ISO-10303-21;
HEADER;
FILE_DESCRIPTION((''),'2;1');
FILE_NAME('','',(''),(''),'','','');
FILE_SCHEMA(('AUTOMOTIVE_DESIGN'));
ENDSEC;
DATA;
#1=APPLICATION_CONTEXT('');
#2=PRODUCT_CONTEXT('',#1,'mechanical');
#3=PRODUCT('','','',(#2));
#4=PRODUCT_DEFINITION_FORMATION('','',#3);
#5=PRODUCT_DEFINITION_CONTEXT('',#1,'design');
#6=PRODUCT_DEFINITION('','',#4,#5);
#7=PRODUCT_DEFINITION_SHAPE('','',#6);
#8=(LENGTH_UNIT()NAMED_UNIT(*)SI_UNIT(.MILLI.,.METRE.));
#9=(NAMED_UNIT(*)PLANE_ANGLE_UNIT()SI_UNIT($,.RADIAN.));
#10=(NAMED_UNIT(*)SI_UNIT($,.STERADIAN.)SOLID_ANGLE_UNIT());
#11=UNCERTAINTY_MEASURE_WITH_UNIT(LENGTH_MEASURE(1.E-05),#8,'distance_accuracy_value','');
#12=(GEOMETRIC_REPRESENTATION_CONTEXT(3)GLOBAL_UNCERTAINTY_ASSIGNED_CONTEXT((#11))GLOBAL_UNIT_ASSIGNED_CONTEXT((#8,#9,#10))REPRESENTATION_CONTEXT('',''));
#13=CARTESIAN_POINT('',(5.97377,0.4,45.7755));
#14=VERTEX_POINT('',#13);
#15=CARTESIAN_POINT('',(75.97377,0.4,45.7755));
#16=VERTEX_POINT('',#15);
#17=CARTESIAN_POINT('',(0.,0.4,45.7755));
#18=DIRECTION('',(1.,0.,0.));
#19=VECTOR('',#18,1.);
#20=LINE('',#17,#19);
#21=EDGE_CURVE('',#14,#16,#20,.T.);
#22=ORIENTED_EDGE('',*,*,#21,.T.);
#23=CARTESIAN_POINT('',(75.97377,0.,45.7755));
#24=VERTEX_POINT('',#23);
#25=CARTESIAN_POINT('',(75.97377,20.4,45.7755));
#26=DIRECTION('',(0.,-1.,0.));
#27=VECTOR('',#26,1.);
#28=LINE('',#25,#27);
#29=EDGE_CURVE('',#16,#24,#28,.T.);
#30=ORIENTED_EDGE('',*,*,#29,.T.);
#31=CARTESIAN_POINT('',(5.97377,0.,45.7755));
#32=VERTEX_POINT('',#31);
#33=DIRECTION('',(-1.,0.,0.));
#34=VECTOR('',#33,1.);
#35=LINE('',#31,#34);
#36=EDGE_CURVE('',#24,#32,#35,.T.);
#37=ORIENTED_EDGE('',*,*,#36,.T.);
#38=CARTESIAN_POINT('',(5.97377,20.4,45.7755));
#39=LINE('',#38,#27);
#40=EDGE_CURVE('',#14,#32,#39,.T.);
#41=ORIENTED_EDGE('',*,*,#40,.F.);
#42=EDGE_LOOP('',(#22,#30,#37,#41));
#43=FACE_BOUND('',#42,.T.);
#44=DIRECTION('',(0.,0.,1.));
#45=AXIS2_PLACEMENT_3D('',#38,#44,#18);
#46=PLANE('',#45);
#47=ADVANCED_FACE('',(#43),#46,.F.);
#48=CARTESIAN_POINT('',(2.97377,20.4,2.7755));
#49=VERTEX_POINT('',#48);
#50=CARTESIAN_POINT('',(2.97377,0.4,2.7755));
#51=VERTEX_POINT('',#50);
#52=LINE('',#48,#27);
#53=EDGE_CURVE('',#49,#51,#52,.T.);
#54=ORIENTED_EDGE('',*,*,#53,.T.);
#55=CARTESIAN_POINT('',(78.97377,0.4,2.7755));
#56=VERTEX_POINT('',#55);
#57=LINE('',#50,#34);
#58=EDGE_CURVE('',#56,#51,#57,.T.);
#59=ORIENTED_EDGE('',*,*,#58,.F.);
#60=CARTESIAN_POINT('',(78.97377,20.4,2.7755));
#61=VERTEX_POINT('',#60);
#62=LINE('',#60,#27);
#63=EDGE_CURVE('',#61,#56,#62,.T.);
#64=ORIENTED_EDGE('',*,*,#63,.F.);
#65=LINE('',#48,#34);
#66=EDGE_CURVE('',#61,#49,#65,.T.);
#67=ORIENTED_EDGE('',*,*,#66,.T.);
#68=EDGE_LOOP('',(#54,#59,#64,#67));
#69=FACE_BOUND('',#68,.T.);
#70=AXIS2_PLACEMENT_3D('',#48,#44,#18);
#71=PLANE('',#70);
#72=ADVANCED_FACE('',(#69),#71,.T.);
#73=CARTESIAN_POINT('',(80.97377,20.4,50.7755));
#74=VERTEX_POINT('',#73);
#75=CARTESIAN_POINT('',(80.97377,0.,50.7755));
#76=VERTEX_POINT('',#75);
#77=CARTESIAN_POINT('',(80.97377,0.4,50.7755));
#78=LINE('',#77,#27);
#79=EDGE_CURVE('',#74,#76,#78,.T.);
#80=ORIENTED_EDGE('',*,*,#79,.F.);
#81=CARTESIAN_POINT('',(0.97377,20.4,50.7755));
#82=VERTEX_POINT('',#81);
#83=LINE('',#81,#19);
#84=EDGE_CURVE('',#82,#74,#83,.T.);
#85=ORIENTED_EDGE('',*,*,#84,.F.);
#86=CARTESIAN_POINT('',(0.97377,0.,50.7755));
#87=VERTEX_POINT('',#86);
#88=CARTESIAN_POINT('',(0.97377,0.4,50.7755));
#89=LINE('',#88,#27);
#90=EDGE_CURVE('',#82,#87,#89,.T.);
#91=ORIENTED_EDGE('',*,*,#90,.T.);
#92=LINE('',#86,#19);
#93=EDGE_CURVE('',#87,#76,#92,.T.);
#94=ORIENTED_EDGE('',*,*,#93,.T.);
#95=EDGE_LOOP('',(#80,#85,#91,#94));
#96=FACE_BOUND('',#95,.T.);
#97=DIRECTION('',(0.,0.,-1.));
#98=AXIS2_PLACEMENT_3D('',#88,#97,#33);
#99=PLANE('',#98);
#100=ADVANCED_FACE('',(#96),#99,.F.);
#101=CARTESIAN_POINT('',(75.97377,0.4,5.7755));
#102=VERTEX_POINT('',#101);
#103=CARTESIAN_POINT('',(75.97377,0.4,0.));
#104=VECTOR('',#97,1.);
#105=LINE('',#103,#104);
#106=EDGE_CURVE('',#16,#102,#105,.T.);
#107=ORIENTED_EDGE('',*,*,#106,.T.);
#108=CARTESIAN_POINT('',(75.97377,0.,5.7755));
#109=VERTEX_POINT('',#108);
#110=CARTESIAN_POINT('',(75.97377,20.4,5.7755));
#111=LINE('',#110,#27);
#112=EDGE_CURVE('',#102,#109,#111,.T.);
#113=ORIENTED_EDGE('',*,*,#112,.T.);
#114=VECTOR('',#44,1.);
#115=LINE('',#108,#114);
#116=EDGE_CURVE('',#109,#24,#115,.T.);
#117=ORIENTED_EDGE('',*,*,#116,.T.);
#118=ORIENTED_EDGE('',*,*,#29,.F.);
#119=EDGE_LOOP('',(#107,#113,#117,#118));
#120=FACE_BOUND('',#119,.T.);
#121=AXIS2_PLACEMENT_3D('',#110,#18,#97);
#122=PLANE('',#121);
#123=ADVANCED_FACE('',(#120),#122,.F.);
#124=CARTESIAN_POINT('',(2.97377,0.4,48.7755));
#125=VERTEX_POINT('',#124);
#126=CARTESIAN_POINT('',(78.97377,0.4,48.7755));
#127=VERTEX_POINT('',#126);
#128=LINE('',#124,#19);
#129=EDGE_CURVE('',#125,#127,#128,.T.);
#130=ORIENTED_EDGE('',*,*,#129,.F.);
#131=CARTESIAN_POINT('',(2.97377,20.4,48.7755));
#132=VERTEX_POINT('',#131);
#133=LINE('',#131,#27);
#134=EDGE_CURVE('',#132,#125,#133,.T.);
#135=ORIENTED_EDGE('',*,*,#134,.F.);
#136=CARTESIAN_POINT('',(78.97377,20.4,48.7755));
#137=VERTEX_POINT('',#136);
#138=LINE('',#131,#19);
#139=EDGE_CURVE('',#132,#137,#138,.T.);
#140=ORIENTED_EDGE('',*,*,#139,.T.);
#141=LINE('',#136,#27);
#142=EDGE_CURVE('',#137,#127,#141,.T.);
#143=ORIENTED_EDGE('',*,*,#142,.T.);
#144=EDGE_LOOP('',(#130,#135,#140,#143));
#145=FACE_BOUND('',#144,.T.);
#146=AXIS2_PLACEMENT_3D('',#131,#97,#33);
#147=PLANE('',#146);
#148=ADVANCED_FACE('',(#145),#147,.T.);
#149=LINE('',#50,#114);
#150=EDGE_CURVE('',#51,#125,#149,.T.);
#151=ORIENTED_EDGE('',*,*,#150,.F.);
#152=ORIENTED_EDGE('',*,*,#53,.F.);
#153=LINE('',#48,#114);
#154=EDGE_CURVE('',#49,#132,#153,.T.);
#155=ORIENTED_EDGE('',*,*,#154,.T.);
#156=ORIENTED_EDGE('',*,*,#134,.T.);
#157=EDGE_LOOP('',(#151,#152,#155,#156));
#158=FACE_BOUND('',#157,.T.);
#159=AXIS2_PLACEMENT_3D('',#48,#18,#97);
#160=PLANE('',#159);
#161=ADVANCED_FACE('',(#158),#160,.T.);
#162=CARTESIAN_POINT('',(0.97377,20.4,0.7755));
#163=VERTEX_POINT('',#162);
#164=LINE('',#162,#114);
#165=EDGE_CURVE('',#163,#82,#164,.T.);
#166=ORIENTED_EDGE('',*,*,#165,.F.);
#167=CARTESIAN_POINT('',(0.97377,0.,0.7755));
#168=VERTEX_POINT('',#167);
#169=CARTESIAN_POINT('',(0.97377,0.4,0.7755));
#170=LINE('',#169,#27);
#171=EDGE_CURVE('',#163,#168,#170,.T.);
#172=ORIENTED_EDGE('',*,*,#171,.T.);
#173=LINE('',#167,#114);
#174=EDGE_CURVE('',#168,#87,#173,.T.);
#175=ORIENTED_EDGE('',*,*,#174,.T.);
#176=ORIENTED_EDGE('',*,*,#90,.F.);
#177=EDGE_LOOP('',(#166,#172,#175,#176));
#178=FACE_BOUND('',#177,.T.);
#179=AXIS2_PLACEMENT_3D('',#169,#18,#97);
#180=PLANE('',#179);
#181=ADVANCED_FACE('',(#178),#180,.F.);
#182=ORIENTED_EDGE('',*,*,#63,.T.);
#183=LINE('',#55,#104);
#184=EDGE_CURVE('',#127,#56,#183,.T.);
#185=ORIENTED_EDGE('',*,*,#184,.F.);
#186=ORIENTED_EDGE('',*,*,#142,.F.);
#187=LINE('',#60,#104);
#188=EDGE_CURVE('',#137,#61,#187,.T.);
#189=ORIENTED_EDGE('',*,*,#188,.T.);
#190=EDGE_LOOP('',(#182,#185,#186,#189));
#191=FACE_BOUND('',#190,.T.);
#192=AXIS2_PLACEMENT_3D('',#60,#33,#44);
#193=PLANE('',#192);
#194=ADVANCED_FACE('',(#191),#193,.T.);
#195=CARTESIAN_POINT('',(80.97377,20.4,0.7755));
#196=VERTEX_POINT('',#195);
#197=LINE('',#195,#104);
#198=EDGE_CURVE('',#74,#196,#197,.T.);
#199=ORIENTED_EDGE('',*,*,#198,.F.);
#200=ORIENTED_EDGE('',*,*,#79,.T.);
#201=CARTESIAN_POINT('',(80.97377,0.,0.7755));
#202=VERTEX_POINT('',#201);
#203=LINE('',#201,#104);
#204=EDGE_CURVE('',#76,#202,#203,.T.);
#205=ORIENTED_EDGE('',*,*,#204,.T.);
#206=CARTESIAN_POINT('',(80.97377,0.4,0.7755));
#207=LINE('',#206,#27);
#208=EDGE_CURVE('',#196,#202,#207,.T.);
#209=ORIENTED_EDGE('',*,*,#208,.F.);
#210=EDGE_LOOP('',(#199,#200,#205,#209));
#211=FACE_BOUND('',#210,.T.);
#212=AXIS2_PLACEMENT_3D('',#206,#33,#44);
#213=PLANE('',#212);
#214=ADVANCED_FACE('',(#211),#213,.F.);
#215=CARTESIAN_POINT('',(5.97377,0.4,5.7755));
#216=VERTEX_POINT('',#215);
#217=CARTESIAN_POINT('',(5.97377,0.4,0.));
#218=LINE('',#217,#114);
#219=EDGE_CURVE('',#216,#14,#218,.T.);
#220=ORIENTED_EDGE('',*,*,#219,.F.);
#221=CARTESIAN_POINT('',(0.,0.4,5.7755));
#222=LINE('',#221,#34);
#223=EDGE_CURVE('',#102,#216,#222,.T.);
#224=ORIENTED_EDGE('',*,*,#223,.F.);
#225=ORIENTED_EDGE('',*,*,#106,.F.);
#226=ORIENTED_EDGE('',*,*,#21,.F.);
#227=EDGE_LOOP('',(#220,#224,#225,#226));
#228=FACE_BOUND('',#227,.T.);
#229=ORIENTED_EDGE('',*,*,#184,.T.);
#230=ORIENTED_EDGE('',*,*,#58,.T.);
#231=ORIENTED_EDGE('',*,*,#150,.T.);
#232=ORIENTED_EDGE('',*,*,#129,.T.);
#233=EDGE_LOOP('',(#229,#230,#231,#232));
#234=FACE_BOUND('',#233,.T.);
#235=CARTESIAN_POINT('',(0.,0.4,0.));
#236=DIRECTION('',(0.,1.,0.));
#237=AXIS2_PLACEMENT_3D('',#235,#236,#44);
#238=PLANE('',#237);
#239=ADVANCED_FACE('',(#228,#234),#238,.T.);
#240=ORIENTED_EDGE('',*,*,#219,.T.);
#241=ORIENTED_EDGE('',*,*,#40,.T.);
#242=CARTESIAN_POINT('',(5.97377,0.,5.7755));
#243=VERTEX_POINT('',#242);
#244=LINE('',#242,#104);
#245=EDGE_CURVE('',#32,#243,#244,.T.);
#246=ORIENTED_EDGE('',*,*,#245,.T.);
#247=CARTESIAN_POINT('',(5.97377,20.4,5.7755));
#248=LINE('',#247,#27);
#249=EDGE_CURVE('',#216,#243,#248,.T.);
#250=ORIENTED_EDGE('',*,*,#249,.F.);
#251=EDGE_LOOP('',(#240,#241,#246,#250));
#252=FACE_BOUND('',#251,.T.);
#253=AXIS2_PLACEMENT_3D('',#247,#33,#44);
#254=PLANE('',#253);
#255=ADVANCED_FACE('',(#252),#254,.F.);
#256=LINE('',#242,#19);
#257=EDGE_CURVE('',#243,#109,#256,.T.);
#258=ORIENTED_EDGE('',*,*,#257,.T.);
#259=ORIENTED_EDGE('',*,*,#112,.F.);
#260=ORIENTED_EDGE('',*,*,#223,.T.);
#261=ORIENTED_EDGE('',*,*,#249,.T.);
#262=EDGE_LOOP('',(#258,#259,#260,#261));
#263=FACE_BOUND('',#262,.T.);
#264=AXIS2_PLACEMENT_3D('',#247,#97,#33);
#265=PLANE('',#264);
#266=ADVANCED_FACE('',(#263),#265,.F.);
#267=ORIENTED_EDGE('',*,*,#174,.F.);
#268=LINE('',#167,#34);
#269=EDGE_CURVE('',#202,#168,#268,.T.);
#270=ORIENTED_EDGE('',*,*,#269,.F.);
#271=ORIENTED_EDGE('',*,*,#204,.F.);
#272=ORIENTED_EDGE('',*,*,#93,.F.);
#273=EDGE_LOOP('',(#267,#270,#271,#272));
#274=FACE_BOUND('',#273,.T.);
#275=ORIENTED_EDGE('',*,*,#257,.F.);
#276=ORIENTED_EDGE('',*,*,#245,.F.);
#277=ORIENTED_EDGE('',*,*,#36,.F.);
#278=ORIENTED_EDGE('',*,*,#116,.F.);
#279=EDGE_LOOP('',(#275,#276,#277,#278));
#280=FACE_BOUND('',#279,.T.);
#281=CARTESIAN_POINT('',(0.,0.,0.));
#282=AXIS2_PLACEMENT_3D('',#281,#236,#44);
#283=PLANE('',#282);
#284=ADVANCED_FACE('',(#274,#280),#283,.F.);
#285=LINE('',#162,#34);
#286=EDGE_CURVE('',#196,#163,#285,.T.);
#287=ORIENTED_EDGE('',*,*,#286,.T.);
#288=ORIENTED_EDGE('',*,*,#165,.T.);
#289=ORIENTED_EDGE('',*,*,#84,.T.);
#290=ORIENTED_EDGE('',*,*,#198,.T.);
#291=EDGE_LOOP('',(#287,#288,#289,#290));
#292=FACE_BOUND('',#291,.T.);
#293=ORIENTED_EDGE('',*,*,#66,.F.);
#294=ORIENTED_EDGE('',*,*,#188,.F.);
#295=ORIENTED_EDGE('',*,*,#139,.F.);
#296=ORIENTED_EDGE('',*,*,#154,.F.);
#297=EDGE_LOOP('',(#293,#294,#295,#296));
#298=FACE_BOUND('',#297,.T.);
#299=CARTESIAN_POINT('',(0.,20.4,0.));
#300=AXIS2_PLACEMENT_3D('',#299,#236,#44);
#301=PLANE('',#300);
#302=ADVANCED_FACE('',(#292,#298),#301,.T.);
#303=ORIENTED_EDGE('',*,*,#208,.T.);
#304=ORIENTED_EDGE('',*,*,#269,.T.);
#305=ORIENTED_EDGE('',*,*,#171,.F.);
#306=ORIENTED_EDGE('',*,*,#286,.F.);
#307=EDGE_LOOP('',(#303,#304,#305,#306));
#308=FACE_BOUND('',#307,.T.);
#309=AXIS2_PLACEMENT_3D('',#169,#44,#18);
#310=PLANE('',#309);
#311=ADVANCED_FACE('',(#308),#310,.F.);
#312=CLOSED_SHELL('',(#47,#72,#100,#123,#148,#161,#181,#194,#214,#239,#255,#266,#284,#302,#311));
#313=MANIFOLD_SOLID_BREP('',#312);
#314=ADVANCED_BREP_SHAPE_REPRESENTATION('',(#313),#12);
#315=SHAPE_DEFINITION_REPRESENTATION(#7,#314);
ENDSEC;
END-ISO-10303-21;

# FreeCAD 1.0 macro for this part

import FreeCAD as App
import Part
import Sketcher
from FreeCAD import Vector

doc = App.newDocument("Part")
body = doc.addObject("PartDesign::Body", "Body")

sketch1 = doc.addObject("Sketcher::SketchObject", "Sketch")
body.addObject(sketch1)
sketch1.AttachmentSupport = (doc.XZ_Plane, [""])
sketch1.MapMode = "FlatFace"
sketch1.addGeometry(Part.LineSegment(Vector(1, 1, 0), Vector(1, 51, 0)), False)
sketch1.addGeometry(Part.LineSegment(Vector(1, 51, 0), Vector(81, 51, 0)), False)
sketch1.addGeometry(Part.LineSegment(Vector(81, 51, 0), Vector(81, 1, 0)), False)
sketch1.addGeometry(Part.LineSegment(Vector(81, 1, 0), Vector(1, 1, 0)), False)
sketch1.addConstraint(Sketcher.Constraint("Coincident", 0, 2, 1, 1))
sketch1.addConstraint(Sketcher.Constraint("Coincident", 1, 2, 2, 1))
sketch1.addConstraint(Sketcher.Constraint("Coincident", 2, 2, 3, 1))
sketch1.addConstraint(Sketcher.Constraint("Coincident", 3, 2, 0, 1))
sketch1.addConstraint(Sketcher.Constraint("Vertical", 0))
sketch1.addConstraint(Sketcher.Constraint("Horizontal", 1))
sketch1.addConstraint(Sketcher.Constraint("Vertical", 2))
sketch1.addConstraint(Sketcher.Constraint("Horizontal", 3))
sketch1.addConstraint(Sketcher.Constraint("DistanceX", 1, 1, 1, 2, 80.0))
sketch1.addConstraint(Sketcher.Constraint("DistanceY", 0, 1, 0, 2, 50.0))
sketch1.addConstraint(Sketcher.Constraint("DistanceY", -1, 1, 0, 2, 50.7755))
sketch1.addConstraint(Sketcher.Constraint("DistanceX", -1, 1, 0, 2, 0.97377))
pad1 = doc.addObject("PartDesign::Pad", "Pad")
body.addObject(pad1)
pad1.Profile = sketch1
pad1.Length = 0.4
pad1.Reversed = True

sketch2 = doc.addObject("Sketcher::SketchObject", "Sketch001")
body.addObject(sketch2)
sketch2.AttachmentSupport = (doc.XZ_Plane, [""])
sketch2.MapMode = "FlatFace"
sketch2.AttachmentOffset = App.Placement(Vector(0, 0, -0.4), App.Rotation())
sketch2.addGeometry(Part.LineSegment(Vector(1, 1, 0), Vector(1, 51, 0)), False)
sketch2.addGeometry(Part.LineSegment(Vector(1, 51, 0), Vector(81, 51, 0)), False)
sketch2.addGeometry(Part.LineSegment(Vector(81, 51, 0), Vector(81, 1, 0)), False)
sketch2.addGeometry(Part.LineSegment(Vector(81, 1, 0), Vector(1, 1, 0)), False)
sketch2.addGeometry(Part.LineSegment(Vector(79, 49, 0), Vector(3, 49, 0)), False)
sketch2.addGeometry(Part.LineSegment(Vector(3, 49, 0), Vector(3, 3, 0)), False)
sketch2.addGeometry(Part.LineSegment(Vector(3, 3, 0), Vector(79, 3, 0)), False)
sketch2.addGeometry(Part.LineSegment(Vector(79, 3, 0), Vector(79, 49, 0)), False)
sketch2.addConstraint(Sketcher.Constraint("Coincident", 0, 2, 1, 1))
sketch2.addConstraint(Sketcher.Constraint("Coincident", 1, 2, 2, 1))
sketch2.addConstraint(Sketcher.Constraint("Coincident", 2, 2, 3, 1))
sketch2.addConstraint(Sketcher.Constraint("Coincident", 3, 2, 0, 1))
sketch2.addConstraint(Sketcher.Constraint("Coincident", 4, 2, 5, 1))
sketch2.addConstraint(Sketcher.Constraint("Coincident", 5, 2, 6, 1))
sketch2.addConstraint(Sketcher.Constraint("Coincident", 6, 2, 7, 1))
sketch2.addConstraint(Sketcher.Constraint("Coincident", 7, 2, 4, 1))
sketch2.addConstraint(Sketcher.Constraint("Vertical", 0))
sketch2.addConstraint(Sketcher.Constraint("Horizontal", 1))
sketch2.addConstraint(Sketcher.Constraint("Vertical", 2))
sketch2.addConstraint(Sketcher.Constraint("Horizontal", 3))
sketch2.addConstraint(Sketcher.Constraint("Horizontal", 4))
sketch2.addConstraint(Sketcher.Constraint("Vertical", 5))
sketch2.addConstraint(Sketcher.Constraint("Horizontal", 6))
sketch2.addConstraint(Sketcher.Constraint("Vertical", 7))
sketch2.addConstraint(Sketcher.Constraint("DistanceX", 1, 1, 1, 2, 80.0))
sketch2.addConstraint(Sketcher.Constraint("DistanceX", 4, 2, 4, 1, 76.0))
sketch2.addConstraint(Sketcher.Constraint("DistanceY", 0, 1, 0, 2, 50.0))
sketch2.addConstraint(Sketcher.Constraint("DistanceY", 5, 2, 5, 1, 46.0))
sketch2.addConstraint(Sketcher.Constraint("DistanceX", 0, 2, 4, 2, 2.0))
sketch2.addConstraint(Sketcher.Constraint("DistanceY", 4, 2, 0, 2, 2.0))
sketch2.addConstraint(Sketcher.Constraint("DistanceY", -1, 1, 0, 2, 50.7755))
sketch2.addConstraint(Sketcher.Constraint("DistanceX", -1, 1, 0, 2, 0.97377))
pad2 = doc.addObject("PartDesign::Pad", "Pad001")
body.addObject(pad2)
pad2.Profile = sketch2
pad2.Length = 20
pad2.Reversed = True

sketch3 = doc.addObject("Sketcher::SketchObject", "Sketch002")
body.addObject(sketch3)
sketch3.AttachmentSupport = (doc.XZ_Plane, [""])
sketch3.MapMode = "FlatFace"
sketch3.addGeometry(Part.LineSegment(Vector(76, 6, 0), Vector(76, 46, 0)), False)
sketch3.addGeometry(Part.LineSegment(Vector(76, 46, 0), Vector(6, 46, 0)), False)
sketch3.addGeometry(Part.LineSegment(Vector(6, 46, 0), Vector(6, 6, 0)), False)
sketch3.addGeometry(Part.LineSegment(Vector(6, 6, 0), Vector(76, 6, 0)), False)
sketch3.addConstraint(Sketcher.Constraint("Coincident", 0, 2, 1, 1))
sketch3.addConstraint(Sketcher.Constraint("Coincident", 1, 2, 2, 1))
sketch3.addConstraint(Sketcher.Constraint("Coincident", 2, 2, 3, 1))
sketch3.addConstraint(Sketcher.Constraint("Coincident", 3, 2, 0, 1))
sketch3.addConstraint(Sketcher.Constraint("Vertical", 0))
sketch3.addConstraint(Sketcher.Constraint("Horizontal", 1))
sketch3.addConstraint(Sketcher.Constraint("Vertical", 2))
sketch3.addConstraint(Sketcher.Constraint("Horizontal", 3))
sketch3.addConstraint(Sketcher.Constraint("DistanceX", 1, 2, 1, 1, 70.0))
sketch3.addConstraint(Sketcher.Constraint("DistanceY", 0, 1, 0, 2, 40.0))
sketch3.addConstraint(Sketcher.Constraint("DistanceY", -1, 1, 0, 2, 45.7755))
sketch3.addConstraint(Sketcher.Constraint("DistanceX", -1, 1, 0, 2, 75.97377))
pocket1 = doc.addObject("PartDesign::Pocket", "Pocket")
body.addObject(pocket1)
pocket1.Profile = sketch3
pocket1.Type = "ThroughAll"

doc.recompute()
